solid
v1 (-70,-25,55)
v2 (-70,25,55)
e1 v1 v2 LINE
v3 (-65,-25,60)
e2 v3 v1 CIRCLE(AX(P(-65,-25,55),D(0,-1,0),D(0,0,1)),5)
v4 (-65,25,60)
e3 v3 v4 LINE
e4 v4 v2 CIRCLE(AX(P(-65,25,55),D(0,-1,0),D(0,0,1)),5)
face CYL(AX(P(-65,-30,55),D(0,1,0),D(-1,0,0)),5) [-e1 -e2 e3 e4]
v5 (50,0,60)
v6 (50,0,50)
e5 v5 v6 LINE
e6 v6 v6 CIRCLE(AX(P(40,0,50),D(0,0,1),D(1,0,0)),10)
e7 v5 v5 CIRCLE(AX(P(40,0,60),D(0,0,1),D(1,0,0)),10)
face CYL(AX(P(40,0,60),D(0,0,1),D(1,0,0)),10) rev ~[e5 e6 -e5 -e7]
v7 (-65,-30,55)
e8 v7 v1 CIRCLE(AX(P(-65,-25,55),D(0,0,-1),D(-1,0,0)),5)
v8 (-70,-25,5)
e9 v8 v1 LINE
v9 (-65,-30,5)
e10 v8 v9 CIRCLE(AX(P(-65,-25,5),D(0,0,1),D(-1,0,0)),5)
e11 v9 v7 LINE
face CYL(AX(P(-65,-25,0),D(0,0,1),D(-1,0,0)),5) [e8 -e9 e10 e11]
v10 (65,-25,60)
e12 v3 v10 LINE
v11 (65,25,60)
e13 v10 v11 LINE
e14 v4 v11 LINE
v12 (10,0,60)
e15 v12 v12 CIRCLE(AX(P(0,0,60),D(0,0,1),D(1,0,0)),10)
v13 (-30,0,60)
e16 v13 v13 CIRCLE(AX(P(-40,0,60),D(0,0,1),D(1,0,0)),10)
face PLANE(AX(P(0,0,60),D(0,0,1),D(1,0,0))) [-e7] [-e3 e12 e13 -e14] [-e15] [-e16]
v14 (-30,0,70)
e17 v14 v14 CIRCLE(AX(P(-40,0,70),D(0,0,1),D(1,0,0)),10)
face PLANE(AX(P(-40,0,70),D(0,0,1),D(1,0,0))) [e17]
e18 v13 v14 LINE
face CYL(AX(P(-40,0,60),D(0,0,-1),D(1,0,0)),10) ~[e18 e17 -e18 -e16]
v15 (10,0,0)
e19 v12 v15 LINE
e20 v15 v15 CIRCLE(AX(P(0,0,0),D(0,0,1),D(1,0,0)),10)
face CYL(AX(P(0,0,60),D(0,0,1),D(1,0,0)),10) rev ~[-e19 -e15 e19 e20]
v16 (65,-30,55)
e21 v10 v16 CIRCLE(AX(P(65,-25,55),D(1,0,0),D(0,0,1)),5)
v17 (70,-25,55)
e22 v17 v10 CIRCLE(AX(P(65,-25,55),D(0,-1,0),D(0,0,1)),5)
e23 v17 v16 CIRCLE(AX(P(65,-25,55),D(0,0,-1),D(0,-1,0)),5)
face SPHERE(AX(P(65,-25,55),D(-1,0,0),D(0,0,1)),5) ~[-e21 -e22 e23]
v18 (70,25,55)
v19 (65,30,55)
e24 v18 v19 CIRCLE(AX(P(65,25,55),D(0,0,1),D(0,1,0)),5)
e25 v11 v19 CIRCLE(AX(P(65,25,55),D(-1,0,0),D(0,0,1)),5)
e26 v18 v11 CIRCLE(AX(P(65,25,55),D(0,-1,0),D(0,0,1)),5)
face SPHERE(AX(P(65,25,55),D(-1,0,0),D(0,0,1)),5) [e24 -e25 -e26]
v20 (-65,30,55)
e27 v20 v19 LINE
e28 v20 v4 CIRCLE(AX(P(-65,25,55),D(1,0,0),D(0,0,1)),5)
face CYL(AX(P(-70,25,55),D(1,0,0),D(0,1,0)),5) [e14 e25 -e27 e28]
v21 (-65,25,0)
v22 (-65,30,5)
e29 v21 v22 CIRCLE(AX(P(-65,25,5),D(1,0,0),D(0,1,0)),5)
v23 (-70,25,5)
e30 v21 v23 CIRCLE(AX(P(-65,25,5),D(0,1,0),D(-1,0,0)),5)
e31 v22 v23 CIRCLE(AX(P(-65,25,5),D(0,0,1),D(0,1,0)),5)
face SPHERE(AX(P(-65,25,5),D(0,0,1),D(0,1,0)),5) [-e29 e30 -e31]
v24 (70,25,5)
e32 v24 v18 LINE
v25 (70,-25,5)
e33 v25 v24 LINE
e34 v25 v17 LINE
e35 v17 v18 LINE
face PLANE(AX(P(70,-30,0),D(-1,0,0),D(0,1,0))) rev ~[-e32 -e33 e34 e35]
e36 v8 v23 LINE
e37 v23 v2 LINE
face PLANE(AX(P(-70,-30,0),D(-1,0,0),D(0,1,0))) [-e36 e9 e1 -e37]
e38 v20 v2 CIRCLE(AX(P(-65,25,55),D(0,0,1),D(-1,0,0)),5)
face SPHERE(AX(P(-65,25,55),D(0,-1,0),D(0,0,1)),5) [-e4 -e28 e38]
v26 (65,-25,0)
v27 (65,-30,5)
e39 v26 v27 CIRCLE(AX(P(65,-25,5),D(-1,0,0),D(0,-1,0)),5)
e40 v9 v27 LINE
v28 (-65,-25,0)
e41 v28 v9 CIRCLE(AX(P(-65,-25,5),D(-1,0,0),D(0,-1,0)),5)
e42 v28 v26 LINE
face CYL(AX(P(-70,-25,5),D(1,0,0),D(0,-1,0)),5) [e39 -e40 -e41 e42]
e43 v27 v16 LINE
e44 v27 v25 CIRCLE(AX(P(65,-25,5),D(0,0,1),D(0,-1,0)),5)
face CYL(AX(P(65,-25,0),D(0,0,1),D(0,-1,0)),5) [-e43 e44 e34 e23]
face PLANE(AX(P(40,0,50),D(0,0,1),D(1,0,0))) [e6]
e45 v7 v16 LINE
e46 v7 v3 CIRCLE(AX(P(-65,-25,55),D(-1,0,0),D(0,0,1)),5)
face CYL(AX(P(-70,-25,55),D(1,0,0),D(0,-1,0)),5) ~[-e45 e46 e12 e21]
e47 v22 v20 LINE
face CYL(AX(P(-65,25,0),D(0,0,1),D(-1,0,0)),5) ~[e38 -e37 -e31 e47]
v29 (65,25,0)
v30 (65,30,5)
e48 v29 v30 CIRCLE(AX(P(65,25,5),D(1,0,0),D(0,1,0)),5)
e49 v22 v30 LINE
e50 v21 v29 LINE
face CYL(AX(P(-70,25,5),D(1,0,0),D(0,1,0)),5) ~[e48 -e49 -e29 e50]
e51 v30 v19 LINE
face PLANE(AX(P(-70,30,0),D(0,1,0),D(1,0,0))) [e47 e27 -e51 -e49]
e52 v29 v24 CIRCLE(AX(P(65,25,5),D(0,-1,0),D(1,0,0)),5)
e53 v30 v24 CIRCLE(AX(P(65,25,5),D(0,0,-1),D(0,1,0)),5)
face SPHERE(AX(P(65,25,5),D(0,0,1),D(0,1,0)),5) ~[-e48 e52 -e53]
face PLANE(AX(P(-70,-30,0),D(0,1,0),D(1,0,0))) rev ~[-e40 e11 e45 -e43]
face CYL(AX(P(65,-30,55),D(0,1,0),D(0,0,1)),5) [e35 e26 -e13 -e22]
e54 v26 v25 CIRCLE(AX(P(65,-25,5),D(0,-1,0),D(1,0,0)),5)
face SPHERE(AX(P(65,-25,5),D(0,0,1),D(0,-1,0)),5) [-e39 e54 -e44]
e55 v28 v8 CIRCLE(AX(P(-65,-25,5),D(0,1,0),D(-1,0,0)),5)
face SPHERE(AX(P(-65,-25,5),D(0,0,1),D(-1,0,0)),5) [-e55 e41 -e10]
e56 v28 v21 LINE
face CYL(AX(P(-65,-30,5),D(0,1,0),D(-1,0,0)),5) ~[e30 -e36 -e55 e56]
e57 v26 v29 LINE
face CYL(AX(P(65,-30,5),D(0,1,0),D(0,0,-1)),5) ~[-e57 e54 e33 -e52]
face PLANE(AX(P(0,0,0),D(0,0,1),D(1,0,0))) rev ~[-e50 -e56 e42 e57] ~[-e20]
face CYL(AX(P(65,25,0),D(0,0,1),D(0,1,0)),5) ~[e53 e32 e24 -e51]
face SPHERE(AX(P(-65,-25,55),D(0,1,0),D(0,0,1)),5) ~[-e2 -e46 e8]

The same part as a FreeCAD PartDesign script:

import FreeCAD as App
import Part
import Sketcher

V = App.Vector
Q = App.Units.Quantity


def edges_at(feature, points):
    """Names of the edges that pass closest to the given points."""
    edges = feature.Shape.Edges
    near = lambda p: min(range(len(edges)), key=lambda i: edges[i].distToShape(Part.Vertex(*p))[0])
    return sorted({f"Edge{near(p) + 1}" for p in points})


def add_polygon(sketch, points):
    """Adds a closed chain of lines whose ends are joined by coincident constraints."""
    first, n = sketch.GeometryCount, len(points)
    for a, b in zip(points, points[1:] + points[:1]):
        sketch.addGeometry(Part.LineSegment(App.Vector(*a, 0), App.Vector(*b, 0)), False)
    for i in range(n):
        sketch.addConstraint(Sketcher.Constraint("Coincident", first + i, 2, first + (i + 1) % n, 1))

doc = App.newDocument("Part")
body = doc.addObject("PartDesign::Body", "Body")

# Sketch on XY plane
sketch1 = body.newObject("Sketcher::SketchObject", "Sketch")
sketch1.AttachmentSupport = (doc.getObject("XY_Plane"), [""])
sketch1.MapMode = "FlatFace"
add_polygon(sketch1, [(-70, 30), (-70, -30), (70, -30), (70, 30)])  # lines 0-3
sketch1.addConstraint([
    Sketcher.Constraint("Vertical", 0),
    Sketcher.Constraint("Horizontal", 1),
    Sketcher.Constraint("Vertical", 2),
    Sketcher.Constraint("Horizontal", 3),
    Sketcher.Constraint("Symmetric", 0, 2, 2, 2, -1, 1),
    Sketcher.Constraint("DistanceX", 1, 1, 1, 2, Q("140 mm")),
    Sketcher.Constraint("DistanceY", 0, 2, 0, 1, Q("60 mm")),
])
pad1 = body.newObject("PartDesign::Pad", "Pad")
pad1.Profile = sketch1
pad1.Length = 60

# Sketch on XY plane
sketch2 = body.newObject("Sketcher::SketchObject", "Sketch001")
sketch2.AttachmentSupport = (doc.getObject("XY_Plane"), [""])
sketch2.MapMode = "FlatFace"
sketch2.AttachmentOffset = App.Placement(V(0, 0, 60), App.Rotation())
sketch2.addGeometry(Part.Circle(V(-40, 0, 0), V(0, 0, 1), 10), False)
sketch2.addConstraint([
    Sketcher.Constraint("PointOnObject", 0, 3, -1),
    Sketcher.Constraint("Diameter", 0, Q("20 mm")),
    Sketcher.Constraint("DistanceX", 0, 3, -1, 1, Q("40 mm")),
])
pad2 = body.newObject("PartDesign::Pad", "Pad001")
pad2.Profile = sketch2
pad2.Length = 10

# Sketch on XY plane
sketch3 = body.newObject("Sketcher::SketchObject", "Sketch002")
sketch3.AttachmentSupport = (doc.getObject("XY_Plane"), [""])
sketch3.MapMode = "FlatFace"
sketch3.AttachmentOffset = App.Placement(V(0, 0, 60), App.Rotation())
sketch3.addGeometry(Part.Circle(V(40, 0, 0), V(0, 0, 1), 10), False)
sketch3.addConstraint([
    Sketcher.Constraint("PointOnObject", 0, 3, -1),
    Sketcher.Constraint("Diameter", 0, Q("20 mm")),
    Sketcher.Constraint("DistanceX", -1, 1, 0, 3, Q("40 mm")),
])
pocket1 = body.newObject("PartDesign::Pocket", "Pocket")
pocket1.Profile = sketch3
pocket1.Length = 10

# Sketch on XY plane
sketch4 = body.newObject("Sketcher::SketchObject", "Sketch003")
sketch4.AttachmentSupport = (doc.getObject("XY_Plane"), [""])
sketch4.MapMode = "FlatFace"
sketch4.AttachmentOffset = App.Placement(V(0, 0, 60), App.Rotation())
sketch4.addGeometry(Part.Circle(V(0, 0, 0), V(0, 0, 1), 10), False)
sketch4.addConstraint([
    Sketcher.Constraint("Coincident", 0, 3, -1, 1),
    Sketcher.Constraint("Diameter", 0, Q("20 mm")),
])
pocket2 = body.newObject("PartDesign::Pocket", "Pocket001")
pocket2.Profile = sketch4
pocket2.Length = 95.7
doc.recompute()

fillet = body.newObject("PartDesign::Fillet", "Fillet")
fillet.Base = (pocket2, edges_at(pocket2, [
    (-70, 0, 60),
    (0, -30, 60),
    (0, 30, 60),
    (70, 0, 60),
    (-70, -30, 30),
    (70, -30, 30),
    (-70, 30, 30),
    (70, 30, 30),
    (0, 30, 0),
    (-70, 0, 0),
    (0, -30, 0),
    (70, 0, 0),
]))
fillet.Radius = 5

doc.recompute()
